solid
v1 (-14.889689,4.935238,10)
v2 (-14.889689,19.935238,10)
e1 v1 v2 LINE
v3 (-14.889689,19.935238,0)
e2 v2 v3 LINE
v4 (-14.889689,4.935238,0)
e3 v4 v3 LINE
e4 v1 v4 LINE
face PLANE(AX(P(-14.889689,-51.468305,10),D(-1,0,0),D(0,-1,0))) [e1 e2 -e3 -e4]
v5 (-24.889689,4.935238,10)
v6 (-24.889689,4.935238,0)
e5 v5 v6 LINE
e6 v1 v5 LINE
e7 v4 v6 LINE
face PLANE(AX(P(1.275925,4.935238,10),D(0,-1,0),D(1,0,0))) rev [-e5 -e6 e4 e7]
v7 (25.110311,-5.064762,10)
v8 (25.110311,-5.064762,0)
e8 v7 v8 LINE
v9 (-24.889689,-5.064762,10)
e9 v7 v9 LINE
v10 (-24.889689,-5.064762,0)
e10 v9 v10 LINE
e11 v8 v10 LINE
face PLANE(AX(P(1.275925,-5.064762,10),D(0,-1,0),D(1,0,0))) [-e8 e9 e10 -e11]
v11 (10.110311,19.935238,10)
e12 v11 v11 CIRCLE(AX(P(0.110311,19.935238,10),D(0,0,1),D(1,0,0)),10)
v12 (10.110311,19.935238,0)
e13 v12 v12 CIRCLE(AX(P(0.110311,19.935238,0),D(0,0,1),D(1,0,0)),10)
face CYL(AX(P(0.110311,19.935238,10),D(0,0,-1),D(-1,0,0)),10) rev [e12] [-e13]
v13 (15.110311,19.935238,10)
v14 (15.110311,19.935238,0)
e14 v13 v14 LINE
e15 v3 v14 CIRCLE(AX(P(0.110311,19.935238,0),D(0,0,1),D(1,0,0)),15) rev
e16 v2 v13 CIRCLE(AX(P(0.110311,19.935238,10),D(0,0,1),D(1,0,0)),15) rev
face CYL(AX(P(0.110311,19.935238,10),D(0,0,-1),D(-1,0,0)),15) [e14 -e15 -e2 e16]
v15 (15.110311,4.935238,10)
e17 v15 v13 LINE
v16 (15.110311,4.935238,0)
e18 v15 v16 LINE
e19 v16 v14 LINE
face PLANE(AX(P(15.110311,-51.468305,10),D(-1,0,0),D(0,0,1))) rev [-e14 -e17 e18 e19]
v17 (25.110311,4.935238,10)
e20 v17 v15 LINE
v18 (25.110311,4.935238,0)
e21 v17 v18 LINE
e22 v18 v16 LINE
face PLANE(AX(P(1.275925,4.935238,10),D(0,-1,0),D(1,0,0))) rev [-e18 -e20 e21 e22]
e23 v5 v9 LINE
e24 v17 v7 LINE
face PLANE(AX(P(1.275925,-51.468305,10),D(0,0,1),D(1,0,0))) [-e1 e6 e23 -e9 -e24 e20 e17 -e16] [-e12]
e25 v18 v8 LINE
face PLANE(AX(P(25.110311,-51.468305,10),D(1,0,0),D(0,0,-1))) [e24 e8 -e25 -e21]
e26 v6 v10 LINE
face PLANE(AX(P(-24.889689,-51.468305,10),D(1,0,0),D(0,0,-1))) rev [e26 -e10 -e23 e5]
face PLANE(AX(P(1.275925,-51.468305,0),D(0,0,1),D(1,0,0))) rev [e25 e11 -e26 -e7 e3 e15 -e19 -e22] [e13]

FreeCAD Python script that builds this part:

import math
import FreeCAD as App
import Part
import Sketcher
from FreeCAD import Vector

doc = App.newDocument("Part")
body = doc.addObject("PartDesign::Body", "Body")

sketch1 = body.newObject("Sketcher::SketchObject", "Sketch")
sketch1.AttachmentSupport = (doc.getObject("XY_Plane"), [""])
sketch1.MapMode = "FlatFace"
sketch1.addGeometry([
    Part.LineSegment(Vector(-14.889689, 19.935238, 0), Vector(-14.889689, 4.935238, 0)),
    Part.LineSegment(Vector(-14.889689, 4.935238, 0), Vector(-24.889689, 4.935238, 0)),
    Part.LineSegment(Vector(-24.889689, 4.935238, 0), Vector(-24.889689, -5.064762, 0)),
    Part.LineSegment(Vector(-24.889689, -5.064762, 0), Vector(25.110311, -5.064762, 0)),
    Part.LineSegment(Vector(25.110311, -5.064762, 0), Vector(25.110311, 4.935238, 0)),
    Part.LineSegment(Vector(25.110311, 4.935238, 0), Vector(15.110311, 4.935238, 0)),
    Part.LineSegment(Vector(15.110311, 4.935238, 0), Vector(15.110311, 19.935238, 0)),
    Part.ArcOfCircle(Part.Circle(Vector(0.110311, 19.935238, 0), Vector(0, 0, 1), 15), math.radians(0), math.radians(180)),
    Part.Circle(Vector(0.110311, 19.935238, 0), Vector(0, 0, 1), 10),
], False)
sketch1.addConstraint([
    Sketcher.Constraint("Coincident", 0, 2, 1, 1),
    Sketcher.Constraint("Coincident", 1, 2, 2, 1),
    Sketcher.Constraint("Coincident", 2, 2, 3, 1),
    Sketcher.Constraint("Coincident", 3, 2, 4, 1),
    Sketcher.Constraint("Coincident", 4, 2, 5, 1),
    Sketcher.Constraint("Coincident", 5, 2, 6, 1),
    Sketcher.Constraint("Tangent", 6, 2, 7, 1),
    Sketcher.Constraint("Tangent", 7, 2, 0, 1),
    Sketcher.Constraint("Vertical", 0),
    Sketcher.Constraint("Horizontal", 1),
    Sketcher.Constraint("Vertical", 2),
    Sketcher.Constraint("Horizontal", 3),
    Sketcher.Constraint("Vertical", 4),
    Sketcher.Constraint("Horizontal", 5),
    Sketcher.Constraint("Vertical", 6),
    Sketcher.Constraint("Coincident", 8, 3, 7, 3),
    Sketcher.Constraint("Horizontal", 1, 2, 4, 2),
    Sketcher.Constraint("Equal", 1, 5),
    Sketcher.Constraint("Equal", 5, 2),
    Sketcher.Constraint("Diameter", 8, 20.0),
    Sketcher.Constraint("Radius", 7, 15.0),
    Sketcher.Constraint("DistanceX", 1, 2, 1, 1, 10.0),
    Sketcher.Constraint("DistanceY", 0, 2, 0, 1, 15.0),
    Sketcher.Constraint("DistanceX", -1, 1, 7, 3, 0.110311),
    Sketcher.Constraint("DistanceY", -1, 1, 7, 3, 19.935238),
])
pad1 = body.newObject("PartDesign::Pad", "Pad")
pad1.Profile = sketch1
pad1.Length = 10

doc.recompute()
